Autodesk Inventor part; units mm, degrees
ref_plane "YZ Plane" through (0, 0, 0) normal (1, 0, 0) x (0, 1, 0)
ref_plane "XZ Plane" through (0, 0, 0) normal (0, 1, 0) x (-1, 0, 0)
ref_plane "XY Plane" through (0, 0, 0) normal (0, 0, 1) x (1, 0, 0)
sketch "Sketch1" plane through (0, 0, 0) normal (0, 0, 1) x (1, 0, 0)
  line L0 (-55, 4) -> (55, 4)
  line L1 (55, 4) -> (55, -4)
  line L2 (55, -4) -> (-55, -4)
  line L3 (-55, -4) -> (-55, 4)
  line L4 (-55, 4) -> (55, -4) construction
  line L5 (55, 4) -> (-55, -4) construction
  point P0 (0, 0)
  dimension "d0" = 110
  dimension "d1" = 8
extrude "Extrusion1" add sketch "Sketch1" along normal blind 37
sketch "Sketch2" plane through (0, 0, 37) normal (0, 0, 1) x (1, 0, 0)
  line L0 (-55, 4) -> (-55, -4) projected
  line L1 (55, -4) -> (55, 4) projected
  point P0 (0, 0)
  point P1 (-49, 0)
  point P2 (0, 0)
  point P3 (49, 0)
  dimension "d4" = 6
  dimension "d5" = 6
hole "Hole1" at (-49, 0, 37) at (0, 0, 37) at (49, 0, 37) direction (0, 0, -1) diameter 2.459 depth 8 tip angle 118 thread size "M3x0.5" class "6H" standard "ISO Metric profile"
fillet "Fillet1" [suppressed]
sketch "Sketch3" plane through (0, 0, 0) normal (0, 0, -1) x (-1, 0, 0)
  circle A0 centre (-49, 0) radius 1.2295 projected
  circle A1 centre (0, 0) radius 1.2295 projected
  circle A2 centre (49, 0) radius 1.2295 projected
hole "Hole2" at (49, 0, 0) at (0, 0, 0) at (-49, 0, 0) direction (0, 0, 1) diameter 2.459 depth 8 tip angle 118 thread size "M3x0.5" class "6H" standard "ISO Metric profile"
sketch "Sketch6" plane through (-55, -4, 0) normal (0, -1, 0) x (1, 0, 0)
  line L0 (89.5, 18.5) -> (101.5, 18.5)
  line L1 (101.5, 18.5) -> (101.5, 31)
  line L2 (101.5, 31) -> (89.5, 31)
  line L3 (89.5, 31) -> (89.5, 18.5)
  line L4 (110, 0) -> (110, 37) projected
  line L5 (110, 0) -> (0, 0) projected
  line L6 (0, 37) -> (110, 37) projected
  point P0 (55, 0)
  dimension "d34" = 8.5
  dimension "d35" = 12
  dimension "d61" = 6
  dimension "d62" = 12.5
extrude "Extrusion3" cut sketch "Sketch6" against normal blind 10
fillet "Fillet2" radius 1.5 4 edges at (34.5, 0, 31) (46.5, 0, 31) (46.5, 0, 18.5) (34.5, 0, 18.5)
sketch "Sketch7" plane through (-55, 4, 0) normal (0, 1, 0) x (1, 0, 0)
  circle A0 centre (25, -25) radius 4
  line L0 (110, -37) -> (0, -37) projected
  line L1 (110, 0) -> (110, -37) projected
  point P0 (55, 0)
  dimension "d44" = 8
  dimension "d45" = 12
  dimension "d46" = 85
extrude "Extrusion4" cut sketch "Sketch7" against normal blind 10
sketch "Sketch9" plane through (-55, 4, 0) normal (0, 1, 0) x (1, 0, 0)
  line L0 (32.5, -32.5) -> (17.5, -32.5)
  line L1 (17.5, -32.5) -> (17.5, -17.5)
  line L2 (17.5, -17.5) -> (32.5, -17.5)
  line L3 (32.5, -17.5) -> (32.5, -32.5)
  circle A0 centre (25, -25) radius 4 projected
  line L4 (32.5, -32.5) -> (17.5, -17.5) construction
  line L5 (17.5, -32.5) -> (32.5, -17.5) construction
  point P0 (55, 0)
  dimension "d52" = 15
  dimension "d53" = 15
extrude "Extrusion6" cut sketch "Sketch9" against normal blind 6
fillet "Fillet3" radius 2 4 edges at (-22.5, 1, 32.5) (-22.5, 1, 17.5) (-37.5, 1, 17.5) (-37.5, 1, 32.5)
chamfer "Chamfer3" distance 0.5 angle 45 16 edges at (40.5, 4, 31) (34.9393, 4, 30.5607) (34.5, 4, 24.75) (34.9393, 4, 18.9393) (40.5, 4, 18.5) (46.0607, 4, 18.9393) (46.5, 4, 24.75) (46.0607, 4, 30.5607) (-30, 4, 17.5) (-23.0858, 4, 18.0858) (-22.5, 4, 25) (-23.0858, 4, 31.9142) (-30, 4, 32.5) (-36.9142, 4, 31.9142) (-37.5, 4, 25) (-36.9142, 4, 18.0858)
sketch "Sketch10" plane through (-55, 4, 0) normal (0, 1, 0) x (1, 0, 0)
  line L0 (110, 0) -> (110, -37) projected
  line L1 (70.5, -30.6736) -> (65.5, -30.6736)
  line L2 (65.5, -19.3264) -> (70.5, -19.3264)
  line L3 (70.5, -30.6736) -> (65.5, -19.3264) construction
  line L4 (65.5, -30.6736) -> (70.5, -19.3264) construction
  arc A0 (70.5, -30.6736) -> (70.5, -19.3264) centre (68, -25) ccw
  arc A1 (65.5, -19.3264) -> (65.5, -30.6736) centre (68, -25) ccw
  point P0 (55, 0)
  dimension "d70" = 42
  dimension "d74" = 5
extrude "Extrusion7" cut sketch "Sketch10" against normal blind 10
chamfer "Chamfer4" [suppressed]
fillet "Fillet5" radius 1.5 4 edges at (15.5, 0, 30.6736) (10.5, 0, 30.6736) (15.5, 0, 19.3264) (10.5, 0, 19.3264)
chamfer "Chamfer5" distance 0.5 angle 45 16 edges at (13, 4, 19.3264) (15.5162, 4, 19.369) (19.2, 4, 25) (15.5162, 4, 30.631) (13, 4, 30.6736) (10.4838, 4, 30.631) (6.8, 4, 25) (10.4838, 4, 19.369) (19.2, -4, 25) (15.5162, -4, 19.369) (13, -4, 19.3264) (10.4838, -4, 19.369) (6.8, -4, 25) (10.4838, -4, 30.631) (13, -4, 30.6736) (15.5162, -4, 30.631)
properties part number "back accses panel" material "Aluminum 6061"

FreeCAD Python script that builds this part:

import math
import FreeCAD as App
import Part
import Sketcher

V = App.Vector
Q = App.Units.Quantity


def edges_at(feature, points):
    """Names of the edges that pass closest to the given points."""
    edges = feature.Shape.Edges
    near = lambda p: min(range(len(edges)), key=lambda i: edges[i].distToShape(Part.Vertex(*p))[0])
    return sorted({f"Edge{near(p) + 1}" for p in points})


def add_polygon(sketch, points):
    """Adds a closed chain of lines whose ends are joined by coincident constraints."""
    first, n = sketch.GeometryCount, len(points)
    for a, b in zip(points, points[1:] + points[:1]):
        sketch.addGeometry(Part.LineSegment(App.Vector(*a, 0), App.Vector(*b, 0)), False)
    for i in range(n):
        sketch.addConstraint(Sketcher.Constraint("Coincident", first + i, 2, first + (i + 1) % n, 1))

doc = App.newDocument("Part")
body = doc.addObject("PartDesign::Body", "Body")

sketch1 = body.newObject("Sketcher::SketchObject", "Sketch")
sketch1.AttachmentSupport = (doc.getObject("XY_Plane"), [""])
sketch1.MapMode = "FlatFace"
add_polygon(sketch1, [(55, 4), (-55, 4), (-55, -4), (55, -4)])
sketch1.addConstraint([
    Sketcher.Constraint("Horizontal", 0),
    Sketcher.Constraint("Vertical", 1),
    Sketcher.Constraint("Horizontal", 2),
    Sketcher.Constraint("Vertical", 3),
    Sketcher.Constraint("Symmetric", 0, 2, 2, 2, -1, 1),
    Sketcher.Constraint("DistanceX", 0, 2, 0, 1, Q("110 mm")),
    Sketcher.Constraint("DistanceY", 1, 2, 1, 1, Q("8 mm")),
])
pad1 = body.newObject("PartDesign::Pad", "Pad")
pad1.Profile = sketch1
pad1.Length = 37

sketch2 = body.newObject("Sketcher::SketchObject", "Sketch001")
sketch2.AttachmentSupport = (doc.getObject("XY_Plane"), [""])
sketch2.MapMode = "FlatFace"
sketch2.AttachmentOffset = App.Placement(V(0, 0, 37), App.Rotation())
sketch2.addGeometry([
    Part.Circle(V(-49, 0, 0), V(0, 0, 1), 1.2),
    Part.Circle(V(0, 0, 0), V(0, 0, 1), 1.2),
    Part.Circle(V(49, 0, 0), V(0, 0, 1), 1.2),
], False)
sketch2.addConstraint([
    Sketcher.Constraint("Coincident", 1, 3, -1, 1),
    Sketcher.Constraint("Equal", 0, 1),
    Sketcher.Constraint("Equal", 1, 2),
    Sketcher.Constraint("Symmetric", 0, 3, 2, 3, -1, 1),
    Sketcher.Constraint("PointOnObject", 0, 3, -1),
    Sketcher.Constraint("Diameter", 0, Q("2.459 mm")),
    Sketcher.Constraint("DistanceX", 0, 3, -1, 1, Q("49 mm")),
])
doc.recompute()
hole = body.newObject("PartDesign::Hole", "Hole")
hole.Profile = sketch2
hole.ThreadType = "None"
hole.Diameter = 2.459
hole.DepthType = "Dimension"
hole.Depth = 8
hole.DrillPoint = "Angled"
hole.DrillPointAngle = 118

sketch3 = body.newObject("Sketcher::SketchObject", "Sketch002")
sketch3.AttachmentSupport = (doc.getObject("XY_Plane"), [""])
sketch3.MapMode = "FlatFace"
sketch3.addGeometry([
    Part.Circle(V(49, 0, 0), V(0, 0, 1), 1.2),
    Part.Circle(V(0, 0, 0), V(0, 0, 1), 1.2),
    Part.Circle(V(-49, 0, 0), V(0, 0, 1), 1.2),
], False)
sketch3.addConstraint([
    Sketcher.Constraint("Coincident", 1, 3, -1, 1),
    Sketcher.Constraint("Equal", 0, 1),
    Sketcher.Constraint("Equal", 1, 2),
    Sketcher.Constraint("Symmetric", 0, 3, 2, 3, -1, 1),
    Sketcher.Constraint("PointOnObject", 0, 3, -1),
    Sketcher.Constraint("Diameter", 0, Q("2.459 mm")),
    Sketcher.Constraint("DistanceX", -1, 1, 0, 3, Q("49 mm")),
])
doc.recompute()
hole2 = body.newObject("PartDesign::Hole", "Hole001")
hole2.Profile = sketch3
hole2.ThreadType = "None"
hole2.Diameter = 2.459
hole2.DepthType = "Dimension"
hole2.Depth = 8
hole2.DrillPoint = "Angled"
hole2.DrillPointAngle = 118
hole2.Reversed = True

sketch4 = body.newObject("Sketcher::SketchObject", "Sketch003")
sketch4.AttachmentSupport = (doc.getObject("XZ_Plane"), [""])
sketch4.MapMode = "FlatFace"
sketch4.AttachmentOffset = App.Placement(V(0, 0, 4), App.Rotation())
add_polygon(sketch4, [(34, 31), (34, 18), (46, 18), (46, 31)])
sketch4.addConstraint([
    Sketcher.Constraint("Vertical", 0),
    Sketcher.Constraint("Horizontal", 1),
    Sketcher.Constraint("Vertical", 2),
    Sketcher.Constraint("Horizontal", 3),
    Sketcher.Constraint("DistanceX", 1, 1, 1, 2, Q("12 mm")),
    Sketcher.Constraint("DistanceY", 0, 2, 0, 1, Q("12.5 mm")),
    Sketcher.Constraint("DistanceY", -1, 1, 2, 2, Q("31 mm")),
    Sketcher.Constraint("DistanceX", -1, 1, 0, 2, Q("34.5 mm")),
])
pocket1 = body.newObject("PartDesign::Pocket", "Pocket")
pocket1.Profile = sketch4
pocket1.Length = 10
doc.recompute()

fillet = body.newObject("PartDesign::Fillet", "Fillet")
fillet.Base = (pocket1, edges_at(pocket1, [
    (34.5, 0, 31),
    (46.5, 0, 31),
    (46.5, 0, 18.5),
    (34.5, 0, 18.5),
]))
fillet.Radius = 1.5

sketch5 = body.newObject("Sketcher::SketchObject", "Sketch004")
sketch5.AttachmentSupport = (doc.getObject("XZ_Plane"), [""])
sketch5.MapMode = "FlatFace"
sketch5.AttachmentOffset = App.Placement(V(0, 0, -4), App.Rotation())
sketch5.addGeometry(Part.Circle(V(-30, 25, 0), V(0, 0, 1), 4), False)
sketch5.addConstraint([
    Sketcher.Constraint("Diameter", 0, Q("8 mm")),
    Sketcher.Constraint("DistanceX", 0, 3, -1, 1, Q("30 mm")),
    Sketcher.Constraint("DistanceY", -1, 1, 0, 3, Q("25 mm")),
])
pocket2 = body.newObject("PartDesign::Pocket", "Pocket001")
pocket2.Profile = sketch5
pocket2.Length = 10
pocket2.Reversed = True

sketch6 = body.newObject("Sketcher::SketchObject", "Sketch005")
sketch6.AttachmentSupport = (doc.getObject("XZ_Plane"), [""])
sketch6.MapMode = "FlatFace"
sketch6.AttachmentOffset = App.Placement(V(0, 0, -4), App.Rotation())
add_polygon(sketch6, [(-37.5, 32.5), (-22.5, 32.5), (-22.5, 17.5), (-37.5, 17.5)])
sketch6.addGeometry(Part.Circle(V(-30, 25, 0), V(0, 0, 1), 4), False)
sketch6.addConstraint([
    Sketcher.Constraint("Horizontal", 0),
    Sketcher.Constraint("Vertical", 1),
    Sketcher.Constraint("Horizontal", 2),
    Sketcher.Constraint("Vertical", 3),
    Sketcher.Constraint("Equal", 2, 1),
    Sketcher.Constraint("DistanceX", 0, 1, 0, 2, Q("15 mm")),
    Sketcher.Constraint("Diameter", 4, Q("8 mm")),
    Sketcher.Constraint("DistanceX", 4, 3, -1, 1, Q("30 mm")),
    Sketcher.Constraint("DistanceY", -1, 1, 4, 3, Q("25 mm")),
    Sketcher.Constraint("DistanceX", 0, 2, -1, 1, Q("22.5 mm")),
    Sketcher.Constraint("DistanceY", -1, 1, 0, 2, Q("32.5 mm")),
])
pocket3 = body.newObject("PartDesign::Pocket", "Pocket002")
pocket3.Profile = sketch6
pocket3.Length = 6
pocket3.Reversed = True
doc.recompute()

fillet2 = body.newObject("PartDesign::Fillet", "Fillet001")
fillet2.Base = (pocket3, edges_at(pocket3, [
    (-22.5, 1, 32.5),
    (-22.5, 1, 17.5),
    (-37.5, 1, 17.5),
    (-37.5, 1, 32.5),
]))
fillet2.Radius = 2
doc.recompute()

chamfer = body.newObject("PartDesign::Chamfer", "Chamfer")
chamfer.Base = (fillet2, edges_at(fillet2, [
    (40.5, 4, 31),
    (34.939, 4, 30.561),
    (34.5, 4, 24.75),
    (34.939, 4, 18.939),
    (40.5, 4, 18.5),
    (46.061, 4, 18.939),
    (46.5, 4, 24.75),
    (46.061, 4, 30.561),
    (-30, 4, 17.5),
    (-23.086, 4, 18.086),
    (-22.5, 4, 25),
    (-23.086, 4, 31.914),
    (-30, 4, 32.5),
    (-36.914, 4, 31.914),
    (-37.5, 4, 25),
    (-36.914, 4, 18.086),
]))
chamfer.Size = 0.5

sketch7 = body.newObject("Sketcher::SketchObject", "Sketch006")
sketch7.AttachmentSupport = (doc.getObject("XZ_Plane"), [""])
sketch7.MapMode = "FlatFace"
sketch7.AttachmentOffset = App.Placement(V(0, 0, -4), App.Rotation())
sketch7.addGeometry([
    Part.LineSegment(V(10, 31, 0), V(16, 31, 0)),
    Part.ArcOfCircle(Part.Circle(V(13, 25, 0), V(0, 0, 1), 6), math.radians(-66), math.radians(66)),
    Part.LineSegment(V(16, 19, 0), V(10, 19, 0)),
    Part.ArcOfCircle(Part.Circle(V(13, 25, 0), V(0, 0, 1), 6), math.radians(114), math.radians(246)),
], False)
sketch7.addConstraint([
    Sketcher.Constraint("Coincident", 0, 2, 1, 2),
    Sketcher.Constraint("Coincident", 1, 1, 2, 1),
    Sketcher.Constraint("Coincident", 2, 2, 3, 2),
    Sketcher.Constraint("Coincident", 3, 1, 0, 1),
    Sketcher.Constraint("Horizontal", 0),
    Sketcher.Constraint("Horizontal", 2),
    Sketcher.Constraint("Coincident", 3, 3, 1, 3),
    Sketcher.Constraint("Equal", 1, 3),
    Sketcher.Constraint("Vertical", 0, 2, 1, 1),
    Sketcher.Constraint("DistanceX", 0, 1, 0, 2, Q("5 mm")),
    Sketcher.Constraint("Radius", 1, Q("6.2 mm")),
    Sketcher.Constraint("DistanceX", -1, 1, 1, 3, Q("13 mm")),
    Sketcher.Constraint("DistanceY", -1, 1, 1, 3, Q("25 mm")),
])
pocket4 = body.newObject("PartDesign::Pocket", "Pocket003")
pocket4.Profile = sketch7
pocket4.Length = 10
pocket4.Reversed = True
doc.recompute()

fillet3 = body.newObject("PartDesign::Fillet", "Fillet002")
fillet3.Base = (pocket4, edges_at(pocket4, [
    (15.5, 0, 30.674),
    (10.5, 0, 30.674),
    (15.5, 0, 19.326),
    (10.5, 0, 19.326),
]))
fillet3.Radius = 1.5
doc.recompute()

chamfer2 = body.newObject("PartDesign::Chamfer", "Chamfer001")
chamfer2.Base = (fillet3, edges_at(fillet3, [
    (13, 4, 19.326),
    (15.516, 4, 19.369),
    (19.2, 4, 25),
    (15.516, 4, 30.631),
    (13, 4, 30.674),
    (10.484, 4, 30.631),
    (6.8, 4, 25),
    (10.484, 4, 19.369),
    (19.2, -4, 25),
    (15.516, -4, 19.369),
    (13, -4, 19.326),
    (10.484, -4, 19.369),
    (6.8, -4, 25),
    (10.484, -4, 30.631),
    (13, -4, 30.674),
    (15.516, -4, 30.631),
]))
chamfer2.Size = 0.5

doc.recompute()
